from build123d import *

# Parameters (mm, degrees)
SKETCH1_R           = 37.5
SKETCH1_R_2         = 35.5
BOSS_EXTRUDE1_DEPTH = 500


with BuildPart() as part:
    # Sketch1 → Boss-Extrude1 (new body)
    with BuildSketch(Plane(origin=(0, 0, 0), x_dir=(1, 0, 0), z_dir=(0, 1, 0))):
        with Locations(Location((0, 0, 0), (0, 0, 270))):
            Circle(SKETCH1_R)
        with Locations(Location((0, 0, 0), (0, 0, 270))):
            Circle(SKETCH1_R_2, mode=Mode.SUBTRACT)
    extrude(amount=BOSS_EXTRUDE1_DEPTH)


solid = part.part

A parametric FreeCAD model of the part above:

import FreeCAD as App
import Part
import Sketcher

doc = App.newDocument("Part")
body = doc.addObject("PartDesign::Body", "Body")

# Sketch on XZ plane
sketch1 = doc.addObject("Sketcher::SketchObject", "Sketch")
body.addObject(sketch1)
sketch1.AttachmentSupport = (doc.XZ_Plane, [""])
sketch1.MapMode = "FlatFace"
sketch1.addGeometry([
    Part.Circle(App.Vector(0, 0, 0), App.Vector(0, 0, 1), 38),
    Part.Circle(App.Vector(0, 0, 0), App.Vector(0, 0, 1), 36),
], False)
sketch1.addConstraint([
    Sketcher.Constraint("Coincident", 0, 3, -1, 1),
    Sketcher.Constraint("Coincident", 1, 3, -1, 1),
    Sketcher.Constraint("Diameter", 0, 75.0),
    Sketcher.Constraint("Diameter", 1, 71.0),
])
pad1 = doc.addObject("PartDesign::Pad", "Pad")
body.addObject(pad1)
pad1.Profile = sketch1
pad1.Length = 500
pad1.Reversed = True

doc.recompute()
